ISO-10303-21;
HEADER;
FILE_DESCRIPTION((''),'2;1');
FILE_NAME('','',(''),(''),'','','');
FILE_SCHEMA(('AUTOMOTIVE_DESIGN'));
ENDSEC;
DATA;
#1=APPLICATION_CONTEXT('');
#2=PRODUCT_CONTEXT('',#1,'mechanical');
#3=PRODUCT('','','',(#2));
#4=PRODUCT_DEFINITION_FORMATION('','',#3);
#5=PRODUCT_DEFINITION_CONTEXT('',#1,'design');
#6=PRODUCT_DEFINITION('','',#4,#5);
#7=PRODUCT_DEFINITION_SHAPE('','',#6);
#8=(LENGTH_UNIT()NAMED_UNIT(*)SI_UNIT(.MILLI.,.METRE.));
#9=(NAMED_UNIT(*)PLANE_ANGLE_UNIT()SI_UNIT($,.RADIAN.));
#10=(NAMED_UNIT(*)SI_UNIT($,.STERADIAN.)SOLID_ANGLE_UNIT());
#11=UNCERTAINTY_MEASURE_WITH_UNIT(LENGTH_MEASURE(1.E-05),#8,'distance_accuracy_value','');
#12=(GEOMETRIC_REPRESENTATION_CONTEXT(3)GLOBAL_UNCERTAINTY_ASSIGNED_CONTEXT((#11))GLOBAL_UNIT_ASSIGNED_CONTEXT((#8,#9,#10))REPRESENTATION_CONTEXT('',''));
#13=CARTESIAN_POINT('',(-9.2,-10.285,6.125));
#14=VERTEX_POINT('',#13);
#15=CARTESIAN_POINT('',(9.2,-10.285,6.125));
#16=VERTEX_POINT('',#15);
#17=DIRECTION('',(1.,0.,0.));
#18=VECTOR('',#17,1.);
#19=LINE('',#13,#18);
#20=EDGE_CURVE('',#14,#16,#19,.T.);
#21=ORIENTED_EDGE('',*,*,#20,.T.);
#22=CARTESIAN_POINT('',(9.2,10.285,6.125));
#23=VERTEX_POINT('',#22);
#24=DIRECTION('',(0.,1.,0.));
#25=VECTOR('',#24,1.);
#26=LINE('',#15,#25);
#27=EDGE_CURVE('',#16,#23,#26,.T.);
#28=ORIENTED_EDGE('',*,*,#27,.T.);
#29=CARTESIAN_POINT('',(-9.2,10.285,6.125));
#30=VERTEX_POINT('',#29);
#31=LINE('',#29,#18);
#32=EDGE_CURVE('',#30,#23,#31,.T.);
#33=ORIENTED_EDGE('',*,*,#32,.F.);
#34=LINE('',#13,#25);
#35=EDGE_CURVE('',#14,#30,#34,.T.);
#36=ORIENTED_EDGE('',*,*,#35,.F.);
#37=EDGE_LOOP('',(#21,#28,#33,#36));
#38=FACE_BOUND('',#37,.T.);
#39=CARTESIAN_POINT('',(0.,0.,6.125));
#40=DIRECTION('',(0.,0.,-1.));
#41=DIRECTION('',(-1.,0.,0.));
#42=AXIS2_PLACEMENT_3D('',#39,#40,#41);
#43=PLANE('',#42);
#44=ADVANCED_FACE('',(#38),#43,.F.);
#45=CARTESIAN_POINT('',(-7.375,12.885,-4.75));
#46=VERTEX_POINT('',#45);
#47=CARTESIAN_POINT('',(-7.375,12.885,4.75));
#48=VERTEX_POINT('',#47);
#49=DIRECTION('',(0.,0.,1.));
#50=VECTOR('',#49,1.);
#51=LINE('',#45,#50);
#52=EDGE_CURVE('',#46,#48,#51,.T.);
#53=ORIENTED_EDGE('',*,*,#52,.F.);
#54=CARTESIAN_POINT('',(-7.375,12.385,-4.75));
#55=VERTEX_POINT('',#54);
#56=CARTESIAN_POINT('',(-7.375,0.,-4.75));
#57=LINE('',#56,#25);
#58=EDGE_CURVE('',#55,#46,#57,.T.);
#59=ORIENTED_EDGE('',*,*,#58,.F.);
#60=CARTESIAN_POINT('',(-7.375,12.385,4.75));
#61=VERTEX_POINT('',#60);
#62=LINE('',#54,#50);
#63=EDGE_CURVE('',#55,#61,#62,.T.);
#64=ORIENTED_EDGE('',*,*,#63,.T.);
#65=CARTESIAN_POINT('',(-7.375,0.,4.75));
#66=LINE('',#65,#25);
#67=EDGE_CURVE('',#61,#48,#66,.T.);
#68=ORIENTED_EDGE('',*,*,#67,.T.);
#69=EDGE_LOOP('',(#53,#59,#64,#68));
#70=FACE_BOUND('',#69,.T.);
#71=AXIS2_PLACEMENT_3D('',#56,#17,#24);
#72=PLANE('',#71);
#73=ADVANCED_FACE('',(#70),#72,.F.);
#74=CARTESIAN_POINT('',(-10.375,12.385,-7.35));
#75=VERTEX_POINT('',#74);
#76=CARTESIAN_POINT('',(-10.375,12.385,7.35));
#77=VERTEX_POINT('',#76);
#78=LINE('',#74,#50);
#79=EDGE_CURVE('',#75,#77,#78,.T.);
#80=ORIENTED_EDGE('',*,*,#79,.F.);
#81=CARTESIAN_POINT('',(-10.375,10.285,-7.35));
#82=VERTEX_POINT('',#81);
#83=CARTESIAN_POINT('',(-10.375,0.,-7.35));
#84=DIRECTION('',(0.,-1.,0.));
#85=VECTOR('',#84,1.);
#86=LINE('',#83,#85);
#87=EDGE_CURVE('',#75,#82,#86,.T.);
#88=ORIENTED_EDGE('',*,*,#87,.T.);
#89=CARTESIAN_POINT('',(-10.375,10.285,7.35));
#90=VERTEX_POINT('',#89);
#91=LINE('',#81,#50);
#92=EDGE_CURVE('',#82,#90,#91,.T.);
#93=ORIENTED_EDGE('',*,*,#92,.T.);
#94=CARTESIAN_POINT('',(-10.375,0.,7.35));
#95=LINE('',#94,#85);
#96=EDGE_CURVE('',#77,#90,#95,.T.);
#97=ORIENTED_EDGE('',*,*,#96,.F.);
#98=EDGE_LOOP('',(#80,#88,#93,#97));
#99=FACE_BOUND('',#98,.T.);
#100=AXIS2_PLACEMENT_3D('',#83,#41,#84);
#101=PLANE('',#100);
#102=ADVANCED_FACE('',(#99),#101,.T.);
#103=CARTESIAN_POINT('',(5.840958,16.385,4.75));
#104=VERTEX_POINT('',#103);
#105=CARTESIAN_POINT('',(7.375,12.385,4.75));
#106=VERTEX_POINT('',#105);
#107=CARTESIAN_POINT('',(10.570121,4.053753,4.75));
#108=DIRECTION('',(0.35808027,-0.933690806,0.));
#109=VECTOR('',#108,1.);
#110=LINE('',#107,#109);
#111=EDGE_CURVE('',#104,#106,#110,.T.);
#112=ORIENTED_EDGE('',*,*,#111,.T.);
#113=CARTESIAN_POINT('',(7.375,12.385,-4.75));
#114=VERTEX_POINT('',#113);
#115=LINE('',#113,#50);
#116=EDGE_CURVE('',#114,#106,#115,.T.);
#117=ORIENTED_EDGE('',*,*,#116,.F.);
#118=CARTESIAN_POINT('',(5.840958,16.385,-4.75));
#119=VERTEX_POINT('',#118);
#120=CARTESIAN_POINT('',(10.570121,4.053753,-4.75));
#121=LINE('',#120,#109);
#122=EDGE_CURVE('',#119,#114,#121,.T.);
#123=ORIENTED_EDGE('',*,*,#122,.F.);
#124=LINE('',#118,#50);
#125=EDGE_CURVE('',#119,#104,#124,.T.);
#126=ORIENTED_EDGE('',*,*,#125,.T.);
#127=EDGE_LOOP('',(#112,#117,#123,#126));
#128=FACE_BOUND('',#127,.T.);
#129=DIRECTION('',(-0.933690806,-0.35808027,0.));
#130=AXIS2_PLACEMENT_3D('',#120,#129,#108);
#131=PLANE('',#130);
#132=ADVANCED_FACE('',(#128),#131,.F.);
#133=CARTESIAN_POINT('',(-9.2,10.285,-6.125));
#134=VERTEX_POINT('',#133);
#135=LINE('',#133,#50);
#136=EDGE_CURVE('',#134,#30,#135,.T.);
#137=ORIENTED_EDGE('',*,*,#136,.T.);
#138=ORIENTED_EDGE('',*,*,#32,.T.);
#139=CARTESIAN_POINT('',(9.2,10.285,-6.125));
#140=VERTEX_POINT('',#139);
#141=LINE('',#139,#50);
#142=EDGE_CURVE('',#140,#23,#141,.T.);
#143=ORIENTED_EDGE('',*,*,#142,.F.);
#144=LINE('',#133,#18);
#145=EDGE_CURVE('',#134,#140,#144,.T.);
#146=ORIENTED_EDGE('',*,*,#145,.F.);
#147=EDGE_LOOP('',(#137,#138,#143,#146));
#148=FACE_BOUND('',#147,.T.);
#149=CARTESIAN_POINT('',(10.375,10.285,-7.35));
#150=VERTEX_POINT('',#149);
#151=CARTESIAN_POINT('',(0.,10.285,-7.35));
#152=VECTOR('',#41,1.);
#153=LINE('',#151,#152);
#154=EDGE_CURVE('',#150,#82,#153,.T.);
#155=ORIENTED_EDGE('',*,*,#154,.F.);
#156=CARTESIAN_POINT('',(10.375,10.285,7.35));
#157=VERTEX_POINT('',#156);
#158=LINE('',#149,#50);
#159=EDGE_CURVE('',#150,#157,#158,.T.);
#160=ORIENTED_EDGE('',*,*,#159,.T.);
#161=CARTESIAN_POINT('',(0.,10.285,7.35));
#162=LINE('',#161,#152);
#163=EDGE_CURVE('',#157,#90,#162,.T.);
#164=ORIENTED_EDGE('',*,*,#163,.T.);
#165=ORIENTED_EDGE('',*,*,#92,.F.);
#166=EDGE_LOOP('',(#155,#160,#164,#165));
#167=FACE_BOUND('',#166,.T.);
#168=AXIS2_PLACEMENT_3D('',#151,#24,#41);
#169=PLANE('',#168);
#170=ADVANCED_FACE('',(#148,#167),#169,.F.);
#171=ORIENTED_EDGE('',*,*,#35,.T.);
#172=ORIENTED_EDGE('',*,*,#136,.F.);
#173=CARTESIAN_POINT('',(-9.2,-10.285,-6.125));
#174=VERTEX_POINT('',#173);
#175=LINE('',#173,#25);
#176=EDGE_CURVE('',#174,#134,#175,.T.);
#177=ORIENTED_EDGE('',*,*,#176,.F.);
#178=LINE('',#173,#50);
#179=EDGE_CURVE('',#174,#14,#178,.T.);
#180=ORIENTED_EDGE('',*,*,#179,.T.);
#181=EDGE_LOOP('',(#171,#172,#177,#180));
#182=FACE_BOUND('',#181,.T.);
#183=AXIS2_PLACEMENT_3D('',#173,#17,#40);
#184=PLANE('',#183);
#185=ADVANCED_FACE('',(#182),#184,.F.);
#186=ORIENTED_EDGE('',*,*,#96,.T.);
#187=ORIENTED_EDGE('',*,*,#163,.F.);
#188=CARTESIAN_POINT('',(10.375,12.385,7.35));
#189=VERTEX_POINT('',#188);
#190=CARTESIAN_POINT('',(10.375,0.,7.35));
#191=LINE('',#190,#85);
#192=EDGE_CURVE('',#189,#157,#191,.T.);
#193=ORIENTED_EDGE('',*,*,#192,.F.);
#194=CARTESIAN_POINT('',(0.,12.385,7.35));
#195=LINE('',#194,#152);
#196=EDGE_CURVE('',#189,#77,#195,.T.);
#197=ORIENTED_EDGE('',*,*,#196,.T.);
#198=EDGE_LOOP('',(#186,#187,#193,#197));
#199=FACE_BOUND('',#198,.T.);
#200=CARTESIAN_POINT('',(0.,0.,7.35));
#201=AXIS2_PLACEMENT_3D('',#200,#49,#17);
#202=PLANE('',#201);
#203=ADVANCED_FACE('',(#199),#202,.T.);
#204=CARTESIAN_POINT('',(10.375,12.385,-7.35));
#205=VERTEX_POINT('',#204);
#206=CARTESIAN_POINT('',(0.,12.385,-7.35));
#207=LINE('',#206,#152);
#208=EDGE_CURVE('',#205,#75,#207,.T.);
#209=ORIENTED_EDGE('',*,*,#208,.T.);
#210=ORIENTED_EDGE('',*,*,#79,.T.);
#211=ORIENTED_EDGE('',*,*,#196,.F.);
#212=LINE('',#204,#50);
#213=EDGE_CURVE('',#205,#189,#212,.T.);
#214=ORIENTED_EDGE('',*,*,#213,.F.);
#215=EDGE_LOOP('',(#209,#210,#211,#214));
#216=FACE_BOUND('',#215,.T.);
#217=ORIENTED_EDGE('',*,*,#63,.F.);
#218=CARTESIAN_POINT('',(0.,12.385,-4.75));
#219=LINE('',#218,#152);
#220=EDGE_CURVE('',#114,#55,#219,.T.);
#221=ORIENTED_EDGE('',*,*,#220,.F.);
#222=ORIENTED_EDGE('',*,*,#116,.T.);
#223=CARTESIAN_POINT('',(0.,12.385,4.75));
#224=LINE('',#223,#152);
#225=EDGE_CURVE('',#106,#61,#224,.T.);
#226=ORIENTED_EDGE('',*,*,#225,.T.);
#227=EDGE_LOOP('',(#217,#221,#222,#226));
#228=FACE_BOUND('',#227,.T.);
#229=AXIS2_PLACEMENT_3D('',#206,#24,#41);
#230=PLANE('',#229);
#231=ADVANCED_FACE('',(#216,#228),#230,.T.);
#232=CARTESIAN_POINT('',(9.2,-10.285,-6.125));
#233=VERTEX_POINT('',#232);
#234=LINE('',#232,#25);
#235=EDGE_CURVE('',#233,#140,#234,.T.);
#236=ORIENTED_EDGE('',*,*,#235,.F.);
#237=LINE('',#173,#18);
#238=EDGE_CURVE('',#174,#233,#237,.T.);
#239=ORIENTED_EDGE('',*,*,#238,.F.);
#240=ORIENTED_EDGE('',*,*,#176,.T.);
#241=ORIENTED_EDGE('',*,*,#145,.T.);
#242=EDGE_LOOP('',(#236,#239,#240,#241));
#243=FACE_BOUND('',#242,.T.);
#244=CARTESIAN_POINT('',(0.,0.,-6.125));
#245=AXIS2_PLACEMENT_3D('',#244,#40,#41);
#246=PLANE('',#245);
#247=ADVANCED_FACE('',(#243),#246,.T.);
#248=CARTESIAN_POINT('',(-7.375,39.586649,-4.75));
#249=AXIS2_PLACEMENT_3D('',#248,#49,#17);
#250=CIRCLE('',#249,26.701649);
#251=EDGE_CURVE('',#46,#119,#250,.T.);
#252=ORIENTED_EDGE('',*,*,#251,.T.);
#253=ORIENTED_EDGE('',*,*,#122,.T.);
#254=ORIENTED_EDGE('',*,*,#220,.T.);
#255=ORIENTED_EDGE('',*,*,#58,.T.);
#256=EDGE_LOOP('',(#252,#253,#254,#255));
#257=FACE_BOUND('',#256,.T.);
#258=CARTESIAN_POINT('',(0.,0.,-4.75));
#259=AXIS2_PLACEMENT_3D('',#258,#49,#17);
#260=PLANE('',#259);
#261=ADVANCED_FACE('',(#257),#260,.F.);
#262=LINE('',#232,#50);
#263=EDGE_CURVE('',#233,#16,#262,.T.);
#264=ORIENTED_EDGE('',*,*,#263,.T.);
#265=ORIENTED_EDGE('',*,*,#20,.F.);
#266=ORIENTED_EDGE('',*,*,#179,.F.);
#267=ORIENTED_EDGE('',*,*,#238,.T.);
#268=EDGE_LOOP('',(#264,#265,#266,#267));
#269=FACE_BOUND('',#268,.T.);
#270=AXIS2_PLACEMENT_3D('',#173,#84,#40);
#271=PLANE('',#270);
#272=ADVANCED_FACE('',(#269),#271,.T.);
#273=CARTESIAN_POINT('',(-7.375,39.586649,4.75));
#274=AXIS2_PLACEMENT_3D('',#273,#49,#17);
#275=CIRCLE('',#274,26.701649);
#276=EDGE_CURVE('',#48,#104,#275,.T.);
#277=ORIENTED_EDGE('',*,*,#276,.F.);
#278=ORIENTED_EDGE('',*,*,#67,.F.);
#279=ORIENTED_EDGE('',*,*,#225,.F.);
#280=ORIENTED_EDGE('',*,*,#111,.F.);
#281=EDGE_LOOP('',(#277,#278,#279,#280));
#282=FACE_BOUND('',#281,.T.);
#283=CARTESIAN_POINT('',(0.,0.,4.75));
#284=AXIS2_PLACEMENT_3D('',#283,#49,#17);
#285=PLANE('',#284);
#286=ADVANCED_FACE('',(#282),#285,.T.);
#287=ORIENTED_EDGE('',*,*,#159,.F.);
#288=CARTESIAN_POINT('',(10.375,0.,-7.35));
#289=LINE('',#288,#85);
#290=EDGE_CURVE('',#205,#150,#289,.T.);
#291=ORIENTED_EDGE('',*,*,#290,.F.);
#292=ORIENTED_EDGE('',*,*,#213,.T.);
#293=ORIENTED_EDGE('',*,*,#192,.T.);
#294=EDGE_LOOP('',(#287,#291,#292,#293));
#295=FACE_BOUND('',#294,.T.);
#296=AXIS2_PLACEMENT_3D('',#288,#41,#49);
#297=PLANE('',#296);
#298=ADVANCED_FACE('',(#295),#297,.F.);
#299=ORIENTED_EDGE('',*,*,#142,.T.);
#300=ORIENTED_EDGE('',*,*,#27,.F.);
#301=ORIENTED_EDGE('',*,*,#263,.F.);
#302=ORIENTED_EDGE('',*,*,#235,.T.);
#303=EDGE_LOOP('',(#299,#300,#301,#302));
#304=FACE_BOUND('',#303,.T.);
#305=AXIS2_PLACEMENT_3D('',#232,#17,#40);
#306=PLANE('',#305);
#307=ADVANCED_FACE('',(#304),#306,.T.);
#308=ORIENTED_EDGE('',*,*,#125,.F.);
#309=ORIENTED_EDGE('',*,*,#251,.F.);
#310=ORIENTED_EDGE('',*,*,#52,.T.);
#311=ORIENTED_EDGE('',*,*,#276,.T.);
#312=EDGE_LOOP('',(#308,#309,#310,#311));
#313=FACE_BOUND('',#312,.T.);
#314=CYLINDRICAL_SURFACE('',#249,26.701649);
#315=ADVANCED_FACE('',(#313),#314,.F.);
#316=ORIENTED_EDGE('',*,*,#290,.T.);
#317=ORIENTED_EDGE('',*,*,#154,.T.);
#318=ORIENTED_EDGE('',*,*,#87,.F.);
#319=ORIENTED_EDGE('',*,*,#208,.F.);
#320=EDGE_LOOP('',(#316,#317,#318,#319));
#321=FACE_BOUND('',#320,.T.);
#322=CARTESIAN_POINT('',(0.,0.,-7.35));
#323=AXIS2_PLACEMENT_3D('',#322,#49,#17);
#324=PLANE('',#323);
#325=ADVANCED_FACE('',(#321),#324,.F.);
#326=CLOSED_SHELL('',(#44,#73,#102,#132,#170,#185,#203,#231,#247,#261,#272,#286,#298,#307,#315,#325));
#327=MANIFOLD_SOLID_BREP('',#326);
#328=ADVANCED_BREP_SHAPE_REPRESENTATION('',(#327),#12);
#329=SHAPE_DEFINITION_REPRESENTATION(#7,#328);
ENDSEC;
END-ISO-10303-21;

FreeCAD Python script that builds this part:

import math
import FreeCAD as App
import Part
import Sketcher

V = App.Vector


def add_polygon(sketch, points):
    """Adds a closed chain of lines whose ends are joined by coincident constraints."""
    first, n = sketch.GeometryCount, len(points)
    for a, b in zip(points, points[1:] + points[:1]):
        sketch.addGeometry(Part.LineSegment(App.Vector(*a, 0), App.Vector(*b, 0)), False)
    for i in range(n):
        sketch.addConstraint(Sketcher.Constraint("Coincident", first + i, 2, first + (i + 1) % n, 1))

doc = App.newDocument("Part")
body = doc.addObject("PartDesign::Body", "Body")

# Sketch on XY plane
sketch1 = body.newObject("Sketcher::SketchObject", "Sketch")
sketch1.AttachmentSupport = (doc.getObject("XY_Plane"), [""])
sketch1.MapMode = "FlatFace"
add_polygon(sketch1, [(-9, 10), (-9, -10), (9, -10), (9, 10)])  # lines 0-3
sketch1.addConstraint([
    Sketcher.Constraint("Vertical", 0),
    Sketcher.Constraint("Horizontal", 1),
    Sketcher.Constraint("Vertical", 2),
    Sketcher.Constraint("Horizontal", 3),
    Sketcher.Constraint("Symmetric", 0, 2, 2, 2, -1, 1),
    Sketcher.Constraint("DistanceX", 1, 1, 1, 2, 18.4),
    Sketcher.Constraint("DistanceY", 0, 2, 0, 1, 20.57),
])
pad1 = body.newObject("PartDesign::Pad", "Pad")
pad1.Profile = sketch1
pad1.Type = "TwoLengths"
pad1.Length = 6.125
pad1.Length2 = 6.125

# Sketch on XY plane
sketch2 = body.newObject("Sketcher::SketchObject", "Sketch001")
sketch2.AttachmentSupport = (doc.getObject("XY_Plane"), [""])
sketch2.MapMode = "FlatFace"
add_polygon(sketch2, [(-10.4, 12.4), (-10.4, 10.3), (10.4, 10.3), (10.4, 12.4)])  # lines 0-3
sketch2.addConstraint([
    Sketcher.Constraint("Vertical", 0),
    Sketcher.Constraint("Horizontal", 1),
    Sketcher.Constraint("Vertical", 2),
    Sketcher.Constraint("Horizontal", 3),
    Sketcher.Constraint("DistanceY", 0, 2, 0, 1, 2.1),
    Sketcher.Constraint("DistanceX", 1, 1, 1, 2, 20.75),
    Sketcher.Constraint("DistanceX", 0, 2, -1, 1, 10.375),
    Sketcher.Constraint("DistanceY", -1, 1, 0, 2, 10.285),
])
pad2 = body.newObject("PartDesign::Pad", "Pad001")
pad2.Profile = sketch2
pad2.Type = "TwoLengths"
pad2.Length = 7.35
pad2.Length2 = 7.35

# Sketch on XY plane
sketch3 = body.newObject("Sketcher::SketchObject", "Sketch002")
sketch3.AttachmentSupport = (doc.getObject("XY_Plane"), [""])
sketch3.MapMode = "FlatFace"
sketch3.addGeometry([
    Part.LineSegment(V(-7.4, 12.9, 0), V(-7.4, 12.4, 0)),
    Part.LineSegment(V(-7.4, 12.4, 0), V(7.4, 12.4, 0)),
    Part.LineSegment(V(7.4, 12.4, 0), V(5.8, 16.4, 0)),
    Part.ArcOfCircle(Part.Circle(V(-7.4, 39.6, 0), V(0, 0, 1), 26.7), math.radians(-90), math.radians(-60)),
], False)
sketch3.addConstraint([
    Sketcher.Constraint("Coincident", 0, 2, 1, 1),
    Sketcher.Constraint("Coincident", 1, 2, 2, 1),
    Sketcher.Constraint("Coincident", 2, 2, 3, 2),
    Sketcher.Constraint("Coincident", 3, 1, 0, 1),
    Sketcher.Constraint("Vertical", 0),
    Sketcher.Constraint("Horizontal", 1),
    Sketcher.Constraint("Vertical", 3, 3, 0, 2),
    Sketcher.Constraint("DistanceY", 0, 2, 0, 1, 0.5),
    Sketcher.Constraint("DistanceY", 1, 2, 2, 2, 4.0),
    Sketcher.Constraint("DistanceX", 1, 1, 1, 2, 14.75),
    Sketcher.Constraint("Radius", 3, 26.701649),
    Sketcher.Constraint("DistanceX", 3, 3, -1, 1, 7.375),
    Sketcher.Constraint("DistanceY", -1, 1, 0, 2, 12.385),
])
pad3 = body.newObject("PartDesign::Pad", "Pad002")
pad3.Profile = sketch3
pad3.Type = "TwoLengths"
pad3.Length = 4.75
pad3.Length2 = 4.75

doc.recompute()
